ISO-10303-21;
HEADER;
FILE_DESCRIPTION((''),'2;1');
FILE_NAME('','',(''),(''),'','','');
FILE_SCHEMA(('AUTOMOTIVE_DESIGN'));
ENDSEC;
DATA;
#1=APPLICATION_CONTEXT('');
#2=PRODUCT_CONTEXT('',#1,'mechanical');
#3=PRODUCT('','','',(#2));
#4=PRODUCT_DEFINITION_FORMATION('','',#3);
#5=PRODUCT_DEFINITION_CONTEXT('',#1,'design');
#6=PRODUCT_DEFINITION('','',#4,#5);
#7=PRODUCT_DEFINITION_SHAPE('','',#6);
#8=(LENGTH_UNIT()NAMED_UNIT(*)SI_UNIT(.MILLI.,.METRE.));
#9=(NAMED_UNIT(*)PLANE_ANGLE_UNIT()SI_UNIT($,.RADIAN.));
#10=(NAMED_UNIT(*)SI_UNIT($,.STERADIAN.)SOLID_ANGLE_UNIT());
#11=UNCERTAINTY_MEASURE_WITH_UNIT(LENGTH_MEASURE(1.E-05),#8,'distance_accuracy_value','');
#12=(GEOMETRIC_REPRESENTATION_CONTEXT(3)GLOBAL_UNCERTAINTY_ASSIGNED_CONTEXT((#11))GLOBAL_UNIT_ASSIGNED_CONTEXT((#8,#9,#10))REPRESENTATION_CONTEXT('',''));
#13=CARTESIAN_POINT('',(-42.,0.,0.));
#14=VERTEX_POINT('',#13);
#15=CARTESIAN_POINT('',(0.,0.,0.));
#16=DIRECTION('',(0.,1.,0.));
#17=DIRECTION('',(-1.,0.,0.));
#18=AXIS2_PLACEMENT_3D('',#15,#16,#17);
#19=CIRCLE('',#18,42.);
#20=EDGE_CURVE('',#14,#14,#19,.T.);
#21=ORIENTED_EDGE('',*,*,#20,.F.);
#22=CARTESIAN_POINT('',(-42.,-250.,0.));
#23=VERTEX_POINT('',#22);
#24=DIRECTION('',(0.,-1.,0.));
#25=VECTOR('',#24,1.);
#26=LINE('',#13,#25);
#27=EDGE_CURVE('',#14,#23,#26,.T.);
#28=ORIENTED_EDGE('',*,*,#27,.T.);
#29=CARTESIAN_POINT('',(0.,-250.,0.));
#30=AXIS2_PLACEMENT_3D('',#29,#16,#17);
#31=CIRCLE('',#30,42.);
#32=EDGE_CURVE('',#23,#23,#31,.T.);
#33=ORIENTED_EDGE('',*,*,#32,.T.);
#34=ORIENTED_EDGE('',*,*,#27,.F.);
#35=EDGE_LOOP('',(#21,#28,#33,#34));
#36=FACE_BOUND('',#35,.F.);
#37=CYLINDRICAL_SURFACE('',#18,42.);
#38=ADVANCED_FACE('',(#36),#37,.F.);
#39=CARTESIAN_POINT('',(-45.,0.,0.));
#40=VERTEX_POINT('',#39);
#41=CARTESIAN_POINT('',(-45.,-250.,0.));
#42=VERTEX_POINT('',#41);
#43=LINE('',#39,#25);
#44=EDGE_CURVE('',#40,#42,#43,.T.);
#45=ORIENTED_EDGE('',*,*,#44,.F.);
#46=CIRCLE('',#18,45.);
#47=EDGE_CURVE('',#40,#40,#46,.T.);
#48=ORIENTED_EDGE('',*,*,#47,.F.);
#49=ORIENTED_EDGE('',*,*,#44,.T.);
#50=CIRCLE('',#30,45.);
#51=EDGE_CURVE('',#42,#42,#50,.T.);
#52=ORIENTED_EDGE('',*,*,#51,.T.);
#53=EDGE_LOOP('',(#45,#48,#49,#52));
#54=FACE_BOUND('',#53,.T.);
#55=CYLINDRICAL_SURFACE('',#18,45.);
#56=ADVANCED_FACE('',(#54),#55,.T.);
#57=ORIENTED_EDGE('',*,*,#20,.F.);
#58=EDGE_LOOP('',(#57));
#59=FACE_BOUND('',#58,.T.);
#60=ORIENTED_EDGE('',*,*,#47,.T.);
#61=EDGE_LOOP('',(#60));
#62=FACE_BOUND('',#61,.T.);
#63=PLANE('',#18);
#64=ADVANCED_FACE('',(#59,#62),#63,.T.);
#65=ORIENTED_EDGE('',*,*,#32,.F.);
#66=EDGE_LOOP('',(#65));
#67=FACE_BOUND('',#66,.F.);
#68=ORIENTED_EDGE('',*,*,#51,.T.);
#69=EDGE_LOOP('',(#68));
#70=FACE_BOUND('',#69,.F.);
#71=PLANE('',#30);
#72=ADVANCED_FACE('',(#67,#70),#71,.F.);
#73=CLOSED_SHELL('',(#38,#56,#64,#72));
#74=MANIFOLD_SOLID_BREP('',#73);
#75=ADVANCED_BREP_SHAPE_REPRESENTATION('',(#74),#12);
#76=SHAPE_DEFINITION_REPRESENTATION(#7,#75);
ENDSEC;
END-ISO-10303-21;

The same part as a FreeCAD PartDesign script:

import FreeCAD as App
import Part
import Sketcher

V = App.Vector
Q = App.Units.Quantity

doc = App.newDocument("Part")
params = doc.addObject("Spreadsheet::Sheet", "Params")
for row, (alias, value) in enumerate([
    ("sketch1_diameter", "90 mm"),
    ("sketch1_diameter2", "84 mm"),
    ("pad1_length", "250 mm"),
], start=1):
    params.set(f"A{row}", alias)
    params.set(f"B{row}", "=" + value)
    params.setAlias(f"B{row}", alias)

body = doc.addObject("PartDesign::Body", "Body")

# Sketch on XZ plane
sketch1 = doc.addObject("Sketcher::SketchObject", "Sketch")
body.addObject(sketch1)
sketch1.AttachmentSupport = (doc.XZ_Plane, [""])
sketch1.MapMode = "FlatFace"
sketch1.addGeometry([
    Part.Circle(V(0, 0, 0), V(0, 0, 1), 45),
    Part.Circle(V(0, 0, 0), V(0, 0, 1), 42),
], False)
sketch1.addConstraint([
    Sketcher.Constraint("Coincident", 0, 3, -1, 1),
    Sketcher.Constraint("Coincident", 1, 3, -1, 1),
    Sketcher.Constraint("Diameter", 0, Q("90 mm")),
    Sketcher.Constraint("Diameter", 1, Q("84 mm")),
])
sketch1.setExpression("Constraints[2]", "Params.sketch1_diameter")
sketch1.setExpression("Constraints[3]", "Params.sketch1_diameter2")
pad1 = doc.addObject("PartDesign::Pad", "Pad")
body.addObject(pad1)
pad1.Profile = sketch1
pad1.setExpression("Length", "Params.pad1_length")

doc.recompute()
